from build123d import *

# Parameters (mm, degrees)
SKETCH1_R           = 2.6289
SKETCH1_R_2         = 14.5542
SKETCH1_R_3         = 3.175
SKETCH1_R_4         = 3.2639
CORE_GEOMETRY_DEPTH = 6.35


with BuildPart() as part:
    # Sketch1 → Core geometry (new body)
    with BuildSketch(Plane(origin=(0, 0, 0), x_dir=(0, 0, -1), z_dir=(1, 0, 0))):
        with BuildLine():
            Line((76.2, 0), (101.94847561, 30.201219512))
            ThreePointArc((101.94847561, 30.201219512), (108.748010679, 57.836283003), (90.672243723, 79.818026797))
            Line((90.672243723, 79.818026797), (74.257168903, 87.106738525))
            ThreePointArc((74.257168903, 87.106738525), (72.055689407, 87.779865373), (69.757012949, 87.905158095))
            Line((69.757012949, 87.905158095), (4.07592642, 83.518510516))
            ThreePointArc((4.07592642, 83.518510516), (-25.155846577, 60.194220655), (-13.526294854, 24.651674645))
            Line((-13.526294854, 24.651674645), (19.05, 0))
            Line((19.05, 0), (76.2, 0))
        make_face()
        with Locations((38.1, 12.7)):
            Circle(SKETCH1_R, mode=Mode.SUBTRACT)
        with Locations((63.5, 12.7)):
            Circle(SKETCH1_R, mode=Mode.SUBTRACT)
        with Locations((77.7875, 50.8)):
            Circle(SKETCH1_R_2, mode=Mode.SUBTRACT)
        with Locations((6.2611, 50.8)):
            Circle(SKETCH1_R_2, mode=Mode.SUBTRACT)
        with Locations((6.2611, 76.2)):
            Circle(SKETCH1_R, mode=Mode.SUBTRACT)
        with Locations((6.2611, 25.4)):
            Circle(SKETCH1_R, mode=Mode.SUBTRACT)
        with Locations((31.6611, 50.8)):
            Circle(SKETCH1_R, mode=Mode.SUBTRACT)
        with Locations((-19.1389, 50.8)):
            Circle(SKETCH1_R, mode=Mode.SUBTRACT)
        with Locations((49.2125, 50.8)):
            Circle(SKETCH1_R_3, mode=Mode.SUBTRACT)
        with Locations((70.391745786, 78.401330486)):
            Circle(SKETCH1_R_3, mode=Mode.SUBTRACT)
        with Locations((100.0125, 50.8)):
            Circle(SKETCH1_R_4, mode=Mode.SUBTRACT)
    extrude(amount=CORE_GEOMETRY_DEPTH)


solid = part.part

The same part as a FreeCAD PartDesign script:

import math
import FreeCAD as App
import Part
import Sketcher
Q = App.Units.Quantity

doc = App.newDocument("Part")
body = doc.addObject("PartDesign::Body", "Body")

# Sketch on YZ plane
sketch1 = body.newObject("Sketcher::SketchObject", "Sketch")
sketch1.AttachmentSupport = (doc.getObject("YZ_Plane"), [""])
sketch1.MapMode = "FlatFace"
sketch1.addGeometry([
    Part.LineSegment(App.Vector(0, -76.2, 0), App.Vector(30.2, -101.9, 0)),  # 0
    Part.ArcOfCircle(Part.Circle(App.Vector(50.8, -77.8, 0), App.Vector(0, 0, 1), 31.8), math.radians(-130), math.radians(-24)),  # 1
    Part.LineSegment(App.Vector(79.8, -90.7, 0), App.Vector(87.1, -74.3, 0)),  # 2
    Part.ArcOfCircle(Part.Circle(App.Vector(78.4, -70.4, 0), App.Vector(0, 0, 1), 9.5), math.radians(-24), math.radians(4)),  # 3
    Part.LineSegment(App.Vector(87.9, -69.8, 0), App.Vector(83.5, -4.1, 0)),  # 4
    Part.ArcOfCircle(Part.Circle(App.Vector(50.8, -6.3, 0), App.Vector(0, 0, 1), 32.8), math.radians(4), math.radians(143)),  # 5
    Part.LineSegment(App.Vector(24.7, 13.5, 0), App.Vector(0, -19.1, 0)),  # 6
    Part.LineSegment(App.Vector(0, -19.1, 0), App.Vector(0, -76.2, 0)),  # 7
    Part.Circle(App.Vector(25.4, -6.3, 0), App.Vector(0, 0, 1), 2.6),  # 8
    Part.Circle(App.Vector(12.7, -38.1, 0), App.Vector(0, 0, 1), 2.6),  # 9
    Part.Circle(App.Vector(12.7, -63.5, 0), App.Vector(0, 0, 1), 2.6),  # 10
    Part.Circle(App.Vector(50.8, 19.1, 0), App.Vector(0, 0, 1), 2.6),  # 11
    Part.Circle(App.Vector(50.8, -6.3, 0), App.Vector(0, 0, 1), 14.6),  # 12
    Part.Circle(App.Vector(50.8, -31.7, 0), App.Vector(0, 0, 1), 2.6),  # 13
    Part.Circle(App.Vector(76.2, -6.3, 0), App.Vector(0, 0, 1), 2.6),  # 14
    Part.Circle(App.Vector(50.8, -49.2, 0), App.Vector(0, 0, 1), 3.2),  # 15
    Part.Circle(App.Vector(50.8, -77.8, 0), App.Vector(0, 0, 1), 14.6),  # 16
    Part.Circle(App.Vector(50.8, -100, 0), App.Vector(0, 0, 1), 3.3),  # 17
    Part.Circle(App.Vector(78.4, -70.4, 0), App.Vector(0, 0, 1), 3.2),  # 18
], False)
sketch1.addConstraint([
    Sketcher.Constraint("Tangent", 0, 2, 1, 1),
    Sketcher.Constraint("Tangent", 1, 2, 2, 1),
    Sketcher.Constraint("Tangent", 2, 2, 3, 1),
    Sketcher.Constraint("Tangent", 3, 2, 4, 1),
    Sketcher.Constraint("Tangent", 4, 2, 5, 1),
    Sketcher.Constraint("Tangent", 5, 2, 6, 1),
    Sketcher.Constraint("Coincident", 6, 2, 7, 1),
    Sketcher.Constraint("Coincident", 7, 2, 0, 1),
    Sketcher.Constraint("Vertical", 7),
    Sketcher.Constraint("Coincident", 12, 3, 5, 3),
    Sketcher.Constraint("Coincident", 16, 3, 1, 3),
    Sketcher.Constraint("Coincident", 18, 3, 3, 3),
    Sketcher.Constraint("Equal", 8, 9),
    Sketcher.Constraint("Equal", 9, 10),
    Sketcher.Constraint("Equal", 10, 11),
    Sketcher.Constraint("Equal", 11, 13),
    Sketcher.Constraint("Equal", 13, 14),
    Sketcher.Constraint("Equal", 12, 16),
    Sketcher.Constraint("Equal", 15, 18),
    Sketcher.Constraint("PointOnObject", 6, 2, -2),
    Sketcher.Constraint("Horizontal", 5, 3, 8, 3),
    Sketcher.Constraint("Horizontal", 12, 3, 14, 3),
    Sketcher.Constraint("Vertical", 1, 3, 5, 3),
    Sketcher.Constraint("Vertical", 9, 3, 10, 3),
    Sketcher.Constraint("Vertical", 5, 3, 11, 3),
    Sketcher.Constraint("Vertical", 12, 3, 13, 3),
    Sketcher.Constraint("Vertical", 13, 3, 15, 3),
    Sketcher.Constraint("Vertical", 16, 3, 17, 3),
    Sketcher.Constraint("Diameter", 15, Q("0.25 in")),
    Sketcher.Constraint("Radius", 1, Q("1.25 in")),
    Sketcher.Constraint("Diameter", 8, Q("0.207 in")),
    Sketcher.Constraint("Diameter", 12, Q("1.146 in")),
    Sketcher.Constraint("Diameter", 17, Q("0.257 in")),
    Sketcher.Constraint("DistanceX", -1, 1, 1, 3, Q("2 in")),
    Sketcher.Constraint("DistanceX", -1, 1, 8, 3, Q("1 in")),
    Sketcher.Constraint("DistanceX", -1, 1, 14, 3, Q("3 in")),
    Sketcher.Constraint("DistanceY", 7, 2, -1, 1, Q("3 in")),
    Sketcher.Constraint("Radius", 3, Q("0.375 in")),
    Sketcher.Constraint("Radius", 5, Q("1.291 in")),
    Sketcher.Constraint("DistanceY", 10, 3, 9, 3, Q("1 in")),
    Sketcher.Constraint("DistanceY", 5, 3, 11, 3, Q("1 in")),
    Sketcher.Constraint("DistanceY", 13, 3, 5, 3, Q("1 in")),
    Sketcher.Constraint("DistanceY", 17, 3, 15, 3, Q("2 in")),
    Sketcher.Constraint("DistanceY", 7, 2, 7, 1, Q("2.25 in")),
    Sketcher.Constraint("DistanceX", -1, 1, 9, 3, Q("0.5 in")),
    Sketcher.Constraint("DistanceY", 9, 3, -1, 1, Q("1.5 in")),
    Sketcher.Constraint("Distance", 0, Q("1.5625 in")),
    Sketcher.Constraint("DistanceY", 15, 3, -1, 1, Q("1.9375 in")),
    Sketcher.Constraint("DistanceY", 1, 3, 5, 3, Q("2.816 in")),
    Sketcher.Constraint("Distance", 4, Q("65.827409 mm")),
    Sketcher.Constraint("DistanceX", -1, 1, 3, 3, Q("78.40133 mm")),
])
pad1 = body.newObject("PartDesign::Pad", "Pad")
pad1.Profile = sketch1
pad1.Length = Q("0.25 in")

doc.recompute()
